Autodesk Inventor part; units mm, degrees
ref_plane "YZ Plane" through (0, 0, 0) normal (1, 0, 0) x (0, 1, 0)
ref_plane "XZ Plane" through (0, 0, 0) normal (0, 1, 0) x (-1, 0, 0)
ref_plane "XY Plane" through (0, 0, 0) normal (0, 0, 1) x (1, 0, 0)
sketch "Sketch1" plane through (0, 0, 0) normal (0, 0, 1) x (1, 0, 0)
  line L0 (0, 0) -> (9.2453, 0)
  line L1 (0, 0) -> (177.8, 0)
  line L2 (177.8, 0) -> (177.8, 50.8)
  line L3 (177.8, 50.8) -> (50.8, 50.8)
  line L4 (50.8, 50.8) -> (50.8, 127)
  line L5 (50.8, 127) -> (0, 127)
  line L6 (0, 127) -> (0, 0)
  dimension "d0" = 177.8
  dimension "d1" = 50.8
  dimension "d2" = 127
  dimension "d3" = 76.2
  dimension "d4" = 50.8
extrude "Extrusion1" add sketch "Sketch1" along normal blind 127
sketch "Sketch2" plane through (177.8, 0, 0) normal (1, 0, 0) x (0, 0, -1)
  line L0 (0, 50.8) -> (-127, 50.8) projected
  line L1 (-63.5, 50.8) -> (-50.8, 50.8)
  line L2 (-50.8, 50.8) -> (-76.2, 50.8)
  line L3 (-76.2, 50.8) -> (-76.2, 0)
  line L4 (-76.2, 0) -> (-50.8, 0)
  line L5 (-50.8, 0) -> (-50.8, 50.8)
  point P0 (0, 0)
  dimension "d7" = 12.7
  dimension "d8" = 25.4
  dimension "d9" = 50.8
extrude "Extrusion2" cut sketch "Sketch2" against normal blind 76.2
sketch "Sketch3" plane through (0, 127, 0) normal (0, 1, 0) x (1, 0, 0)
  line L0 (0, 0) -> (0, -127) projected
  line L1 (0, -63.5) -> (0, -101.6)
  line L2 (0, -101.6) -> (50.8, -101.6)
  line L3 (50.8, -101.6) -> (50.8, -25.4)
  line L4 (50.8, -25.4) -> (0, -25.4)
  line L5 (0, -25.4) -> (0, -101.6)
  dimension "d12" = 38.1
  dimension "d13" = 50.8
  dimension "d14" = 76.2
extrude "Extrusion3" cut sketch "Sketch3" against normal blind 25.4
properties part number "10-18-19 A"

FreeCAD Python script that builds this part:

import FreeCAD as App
import Part
import Sketcher
Q = App.Units.Quantity

doc = App.newDocument("Part")
params = doc.addObject("Spreadsheet::Sheet", "Params")
for row, (alias, value) in enumerate([
    ("sketch1_width", "7 in"),
    ("sketch1_width2", "5 in"),
    ("pad1_length", "5 in"),
    ("sketch2_width", "2 in"),
    ("sketch2_height", "1 in"),
    ("pocket1_length", "3 in"),
    ("sketch3_width", "2 in"),
    ("sketch3_height", "3 in"),
    ("pocket2_length", "1 in"),
], start=1):
    params.set(f"A{row}", alias)
    params.set(f"B{row}", "=" + value)
    params.setAlias(f"B{row}", alias)

body = doc.addObject("PartDesign::Body", "Body")

sketch1 = body.newObject("Sketcher::SketchObject", "Sketch")
sketch1.AttachmentSupport = (doc.getObject("XY_Plane"), [""])
sketch1.MapMode = "FlatFace"
sketch1.addGeometry([
    Part.LineSegment(App.Vector(0, 127, 0), App.Vector(0, 0, 0)),
    Part.LineSegment(App.Vector(0, 0, 0), App.Vector(178, 0, 0)),
    Part.LineSegment(App.Vector(178, 0, 0), App.Vector(178, 51, 0)),
    Part.LineSegment(App.Vector(178, 51, 0), App.Vector(51, 51, 0)),
    Part.LineSegment(App.Vector(51, 51, 0), App.Vector(51, 127, 0)),
    Part.LineSegment(App.Vector(51, 127, 0), App.Vector(0, 127, 0)),
], False)
sketch1.addConstraint([
    Sketcher.Constraint("Coincident", 0, 2, 1, 1),
    Sketcher.Constraint("Coincident", 1, 2, 2, 1),
    Sketcher.Constraint("Coincident", 2, 2, 3, 1),
    Sketcher.Constraint("Coincident", 3, 2, 4, 1),
    Sketcher.Constraint("Coincident", 4, 2, 5, 1),
    Sketcher.Constraint("Coincident", 5, 2, 0, 1),
    Sketcher.Constraint("Vertical", 0),
    Sketcher.Constraint("Horizontal", 1),
    Sketcher.Constraint("Vertical", 2),
    Sketcher.Constraint("Horizontal", 3),
    Sketcher.Constraint("Vertical", 4),
    Sketcher.Constraint("Horizontal", 5),
    Sketcher.Constraint("Coincident", 0, 2, -1, 1),
    Sketcher.Constraint("Equal", 3, 0),
    Sketcher.Constraint("Equal", 5, 2),
    Sketcher.Constraint("DistanceX", 1, 1, 1, 2, Q("7 in")),
    Sketcher.Constraint("DistanceX", 3, 2, 3, 1, Q("5 in")),
])
sketch1.setExpression("Constraints[15]", "Params.sketch1_width")
sketch1.setExpression("Constraints[16]", "Params.sketch1_width2")
pad1 = body.newObject("PartDesign::Pad", "Pad")
pad1.Profile = sketch1
pad1.setExpression("Length", "Params.pad1_length")

sketch2 = body.newObject("Sketcher::SketchObject", "Sketch001")
sketch2.AttachmentSupport = (doc.getObject("YZ_Plane"), [""])
sketch2.MapMode = "FlatFace"
sketch2.AttachmentOffset = App.Placement(App.Vector(0, 0, 7 * 25.4), App.Rotation())
sketch2.addGeometry([
    Part.LineSegment(App.Vector(0, 51, 0), App.Vector(51, 51, 0)),
    Part.LineSegment(App.Vector(51, 51, 0), App.Vector(51, 76, 0)),
    Part.LineSegment(App.Vector(51, 76, 0), App.Vector(0, 76, 0)),
    Part.LineSegment(App.Vector(0, 76, 0), App.Vector(0, 51, 0)),
], False)
sketch2.addConstraint([
    Sketcher.Constraint("Coincident", 0, 2, 1, 1),
    Sketcher.Constraint("Coincident", 1, 2, 2, 1),
    Sketcher.Constraint("Coincident", 2, 2, 3, 1),
    Sketcher.Constraint("Coincident", 3, 2, 0, 1),
    Sketcher.Constraint("Horizontal", 0),
    Sketcher.Constraint("Vertical", 1),
    Sketcher.Constraint("Horizontal", 2),
    Sketcher.Constraint("Vertical", 3),
    Sketcher.Constraint("PointOnObject", 2, 2, -2),
    Sketcher.Constraint("DistanceX", 0, 1, 0, 2, Q("2 in")),
    Sketcher.Constraint("DistanceY", 1, 1, 1, 2, Q("1 in")),
    Sketcher.Constraint("DistanceY", -1, 1, 0, 2, Q("2 in")),
])
sketch2.setExpression("Constraints[9]", "Params.sketch2_width")
sketch2.setExpression("Constraints[10]", "Params.sketch2_height")
pocket1 = body.newObject("PartDesign::Pocket", "Pocket")
pocket1.Profile = sketch2
pocket1.setExpression("Length", "Params.pocket1_length")

sketch3 = body.newObject("Sketcher::SketchObject", "Sketch002")
sketch3.AttachmentSupport = (doc.getObject("XZ_Plane"), [""])
sketch3.MapMode = "FlatFace"
sketch3.AttachmentOffset = App.Placement(App.Vector(0, 0, -5 * 25.4), App.Rotation())
sketch3.addGeometry([
    Part.LineSegment(App.Vector(51, 25, 0), App.Vector(0, 25, 0)),
    Part.LineSegment(App.Vector(0, 25, 0), App.Vector(0, 102, 0)),
    Part.LineSegment(App.Vector(0, 102, 0), App.Vector(51, 102, 0)),
    Part.LineSegment(App.Vector(51, 102, 0), App.Vector(51, 25, 0)),
], False)
sketch3.addConstraint([
    Sketcher.Constraint("Coincident", 0, 2, 1, 1),
    Sketcher.Constraint("Coincident", 1, 2, 2, 1),
    Sketcher.Constraint("Coincident", 2, 2, 3, 1),
    Sketcher.Constraint("Coincident", 3, 2, 0, 1),
    Sketcher.Constraint("Horizontal", 0),
    Sketcher.Constraint("Vertical", 1),
    Sketcher.Constraint("Horizontal", 2),
    Sketcher.Constraint("Vertical", 3),
    Sketcher.Constraint("PointOnObject", 0, 2, -2),
    Sketcher.Constraint("DistanceX", 0, 2, 0, 1, Q("2 in")),
    Sketcher.Constraint("DistanceY", 1, 1, 1, 2, Q("3 in")),
    Sketcher.Constraint("DistanceY", -1, 1, 0, 2, Q("1 in")),
])
sketch3.setExpression("Constraints[9]", "Params.sketch3_width")
sketch3.setExpression("Constraints[10]", "Params.sketch3_height")
pocket2 = body.newObject("PartDesign::Pocket", "Pocket001")
pocket2.Profile = sketch3
pocket2.setExpression("Length", "Params.pocket2_length")
pocket2.Reversed = True

doc.recompute()
